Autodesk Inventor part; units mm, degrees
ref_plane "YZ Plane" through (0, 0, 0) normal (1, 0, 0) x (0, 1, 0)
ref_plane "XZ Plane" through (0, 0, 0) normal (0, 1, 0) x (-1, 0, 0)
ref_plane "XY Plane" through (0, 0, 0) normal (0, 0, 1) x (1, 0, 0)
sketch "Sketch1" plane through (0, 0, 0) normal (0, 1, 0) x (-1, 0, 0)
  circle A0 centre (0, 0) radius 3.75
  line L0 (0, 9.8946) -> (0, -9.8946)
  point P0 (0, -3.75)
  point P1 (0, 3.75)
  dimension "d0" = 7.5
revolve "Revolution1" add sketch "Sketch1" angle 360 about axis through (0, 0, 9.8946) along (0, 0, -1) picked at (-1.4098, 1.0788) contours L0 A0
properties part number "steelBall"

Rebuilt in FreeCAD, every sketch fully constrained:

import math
import FreeCAD as App
import Part
import Sketcher

V = App.Vector
Q = App.Units.Quantity

doc = App.newDocument("Part")
params = doc.addObject("Spreadsheet::Sheet", "Params")
for row, (alias, value) in enumerate([
    ("sketch1_radius", "3.75 mm"),
    ("revolution_angle", "360 deg"),
], start=1):
    params.set(f"A{row}", alias)
    params.set(f"B{row}", "=" + value)
    params.setAlias(f"B{row}", alias)

body = doc.addObject("PartDesign::Body", "Body")

# Sketch on XZ plane
sketch1 = body.newObject("Sketcher::SketchObject", "Sketch")
sketch1.AttachmentSupport = (doc.getObject("XZ_Plane"), [""])
sketch1.MapMode = "FlatFace"
sketch1.addGeometry([
    Part.LineSegment(V(0, -3.75, 0), V(0, 3.75, 0)),
    Part.ArcOfCircle(Part.Circle(V(0, 0, 0), V(0, 0, 1), 3.75), math.radians(-90), math.radians(90)),
], False)
sketch1.addConstraint([
    Sketcher.Constraint("Coincident", 0, 1, 1, 1),
    Sketcher.Constraint("Coincident", 1, 2, 0, 2),
    Sketcher.Constraint("Vertical", 0),
    Sketcher.Constraint("Coincident", 1, 3, -1, 1),
    Sketcher.Constraint("PointOnObject", 0, 1, -2),
    Sketcher.Constraint("Radius", 1, Q("3.75 mm")),
])
sketch1.setExpression("Constraints[5]", "Params.sketch1_radius")
revolution = body.newObject("PartDesign::Revolution", "Revolution")
revolution.Profile = sketch1
revolution.ReferenceAxis = (sketch1, ["V_Axis"])
revolution.setExpression("Angle", "Params.revolution_angle")

doc.recompute()
